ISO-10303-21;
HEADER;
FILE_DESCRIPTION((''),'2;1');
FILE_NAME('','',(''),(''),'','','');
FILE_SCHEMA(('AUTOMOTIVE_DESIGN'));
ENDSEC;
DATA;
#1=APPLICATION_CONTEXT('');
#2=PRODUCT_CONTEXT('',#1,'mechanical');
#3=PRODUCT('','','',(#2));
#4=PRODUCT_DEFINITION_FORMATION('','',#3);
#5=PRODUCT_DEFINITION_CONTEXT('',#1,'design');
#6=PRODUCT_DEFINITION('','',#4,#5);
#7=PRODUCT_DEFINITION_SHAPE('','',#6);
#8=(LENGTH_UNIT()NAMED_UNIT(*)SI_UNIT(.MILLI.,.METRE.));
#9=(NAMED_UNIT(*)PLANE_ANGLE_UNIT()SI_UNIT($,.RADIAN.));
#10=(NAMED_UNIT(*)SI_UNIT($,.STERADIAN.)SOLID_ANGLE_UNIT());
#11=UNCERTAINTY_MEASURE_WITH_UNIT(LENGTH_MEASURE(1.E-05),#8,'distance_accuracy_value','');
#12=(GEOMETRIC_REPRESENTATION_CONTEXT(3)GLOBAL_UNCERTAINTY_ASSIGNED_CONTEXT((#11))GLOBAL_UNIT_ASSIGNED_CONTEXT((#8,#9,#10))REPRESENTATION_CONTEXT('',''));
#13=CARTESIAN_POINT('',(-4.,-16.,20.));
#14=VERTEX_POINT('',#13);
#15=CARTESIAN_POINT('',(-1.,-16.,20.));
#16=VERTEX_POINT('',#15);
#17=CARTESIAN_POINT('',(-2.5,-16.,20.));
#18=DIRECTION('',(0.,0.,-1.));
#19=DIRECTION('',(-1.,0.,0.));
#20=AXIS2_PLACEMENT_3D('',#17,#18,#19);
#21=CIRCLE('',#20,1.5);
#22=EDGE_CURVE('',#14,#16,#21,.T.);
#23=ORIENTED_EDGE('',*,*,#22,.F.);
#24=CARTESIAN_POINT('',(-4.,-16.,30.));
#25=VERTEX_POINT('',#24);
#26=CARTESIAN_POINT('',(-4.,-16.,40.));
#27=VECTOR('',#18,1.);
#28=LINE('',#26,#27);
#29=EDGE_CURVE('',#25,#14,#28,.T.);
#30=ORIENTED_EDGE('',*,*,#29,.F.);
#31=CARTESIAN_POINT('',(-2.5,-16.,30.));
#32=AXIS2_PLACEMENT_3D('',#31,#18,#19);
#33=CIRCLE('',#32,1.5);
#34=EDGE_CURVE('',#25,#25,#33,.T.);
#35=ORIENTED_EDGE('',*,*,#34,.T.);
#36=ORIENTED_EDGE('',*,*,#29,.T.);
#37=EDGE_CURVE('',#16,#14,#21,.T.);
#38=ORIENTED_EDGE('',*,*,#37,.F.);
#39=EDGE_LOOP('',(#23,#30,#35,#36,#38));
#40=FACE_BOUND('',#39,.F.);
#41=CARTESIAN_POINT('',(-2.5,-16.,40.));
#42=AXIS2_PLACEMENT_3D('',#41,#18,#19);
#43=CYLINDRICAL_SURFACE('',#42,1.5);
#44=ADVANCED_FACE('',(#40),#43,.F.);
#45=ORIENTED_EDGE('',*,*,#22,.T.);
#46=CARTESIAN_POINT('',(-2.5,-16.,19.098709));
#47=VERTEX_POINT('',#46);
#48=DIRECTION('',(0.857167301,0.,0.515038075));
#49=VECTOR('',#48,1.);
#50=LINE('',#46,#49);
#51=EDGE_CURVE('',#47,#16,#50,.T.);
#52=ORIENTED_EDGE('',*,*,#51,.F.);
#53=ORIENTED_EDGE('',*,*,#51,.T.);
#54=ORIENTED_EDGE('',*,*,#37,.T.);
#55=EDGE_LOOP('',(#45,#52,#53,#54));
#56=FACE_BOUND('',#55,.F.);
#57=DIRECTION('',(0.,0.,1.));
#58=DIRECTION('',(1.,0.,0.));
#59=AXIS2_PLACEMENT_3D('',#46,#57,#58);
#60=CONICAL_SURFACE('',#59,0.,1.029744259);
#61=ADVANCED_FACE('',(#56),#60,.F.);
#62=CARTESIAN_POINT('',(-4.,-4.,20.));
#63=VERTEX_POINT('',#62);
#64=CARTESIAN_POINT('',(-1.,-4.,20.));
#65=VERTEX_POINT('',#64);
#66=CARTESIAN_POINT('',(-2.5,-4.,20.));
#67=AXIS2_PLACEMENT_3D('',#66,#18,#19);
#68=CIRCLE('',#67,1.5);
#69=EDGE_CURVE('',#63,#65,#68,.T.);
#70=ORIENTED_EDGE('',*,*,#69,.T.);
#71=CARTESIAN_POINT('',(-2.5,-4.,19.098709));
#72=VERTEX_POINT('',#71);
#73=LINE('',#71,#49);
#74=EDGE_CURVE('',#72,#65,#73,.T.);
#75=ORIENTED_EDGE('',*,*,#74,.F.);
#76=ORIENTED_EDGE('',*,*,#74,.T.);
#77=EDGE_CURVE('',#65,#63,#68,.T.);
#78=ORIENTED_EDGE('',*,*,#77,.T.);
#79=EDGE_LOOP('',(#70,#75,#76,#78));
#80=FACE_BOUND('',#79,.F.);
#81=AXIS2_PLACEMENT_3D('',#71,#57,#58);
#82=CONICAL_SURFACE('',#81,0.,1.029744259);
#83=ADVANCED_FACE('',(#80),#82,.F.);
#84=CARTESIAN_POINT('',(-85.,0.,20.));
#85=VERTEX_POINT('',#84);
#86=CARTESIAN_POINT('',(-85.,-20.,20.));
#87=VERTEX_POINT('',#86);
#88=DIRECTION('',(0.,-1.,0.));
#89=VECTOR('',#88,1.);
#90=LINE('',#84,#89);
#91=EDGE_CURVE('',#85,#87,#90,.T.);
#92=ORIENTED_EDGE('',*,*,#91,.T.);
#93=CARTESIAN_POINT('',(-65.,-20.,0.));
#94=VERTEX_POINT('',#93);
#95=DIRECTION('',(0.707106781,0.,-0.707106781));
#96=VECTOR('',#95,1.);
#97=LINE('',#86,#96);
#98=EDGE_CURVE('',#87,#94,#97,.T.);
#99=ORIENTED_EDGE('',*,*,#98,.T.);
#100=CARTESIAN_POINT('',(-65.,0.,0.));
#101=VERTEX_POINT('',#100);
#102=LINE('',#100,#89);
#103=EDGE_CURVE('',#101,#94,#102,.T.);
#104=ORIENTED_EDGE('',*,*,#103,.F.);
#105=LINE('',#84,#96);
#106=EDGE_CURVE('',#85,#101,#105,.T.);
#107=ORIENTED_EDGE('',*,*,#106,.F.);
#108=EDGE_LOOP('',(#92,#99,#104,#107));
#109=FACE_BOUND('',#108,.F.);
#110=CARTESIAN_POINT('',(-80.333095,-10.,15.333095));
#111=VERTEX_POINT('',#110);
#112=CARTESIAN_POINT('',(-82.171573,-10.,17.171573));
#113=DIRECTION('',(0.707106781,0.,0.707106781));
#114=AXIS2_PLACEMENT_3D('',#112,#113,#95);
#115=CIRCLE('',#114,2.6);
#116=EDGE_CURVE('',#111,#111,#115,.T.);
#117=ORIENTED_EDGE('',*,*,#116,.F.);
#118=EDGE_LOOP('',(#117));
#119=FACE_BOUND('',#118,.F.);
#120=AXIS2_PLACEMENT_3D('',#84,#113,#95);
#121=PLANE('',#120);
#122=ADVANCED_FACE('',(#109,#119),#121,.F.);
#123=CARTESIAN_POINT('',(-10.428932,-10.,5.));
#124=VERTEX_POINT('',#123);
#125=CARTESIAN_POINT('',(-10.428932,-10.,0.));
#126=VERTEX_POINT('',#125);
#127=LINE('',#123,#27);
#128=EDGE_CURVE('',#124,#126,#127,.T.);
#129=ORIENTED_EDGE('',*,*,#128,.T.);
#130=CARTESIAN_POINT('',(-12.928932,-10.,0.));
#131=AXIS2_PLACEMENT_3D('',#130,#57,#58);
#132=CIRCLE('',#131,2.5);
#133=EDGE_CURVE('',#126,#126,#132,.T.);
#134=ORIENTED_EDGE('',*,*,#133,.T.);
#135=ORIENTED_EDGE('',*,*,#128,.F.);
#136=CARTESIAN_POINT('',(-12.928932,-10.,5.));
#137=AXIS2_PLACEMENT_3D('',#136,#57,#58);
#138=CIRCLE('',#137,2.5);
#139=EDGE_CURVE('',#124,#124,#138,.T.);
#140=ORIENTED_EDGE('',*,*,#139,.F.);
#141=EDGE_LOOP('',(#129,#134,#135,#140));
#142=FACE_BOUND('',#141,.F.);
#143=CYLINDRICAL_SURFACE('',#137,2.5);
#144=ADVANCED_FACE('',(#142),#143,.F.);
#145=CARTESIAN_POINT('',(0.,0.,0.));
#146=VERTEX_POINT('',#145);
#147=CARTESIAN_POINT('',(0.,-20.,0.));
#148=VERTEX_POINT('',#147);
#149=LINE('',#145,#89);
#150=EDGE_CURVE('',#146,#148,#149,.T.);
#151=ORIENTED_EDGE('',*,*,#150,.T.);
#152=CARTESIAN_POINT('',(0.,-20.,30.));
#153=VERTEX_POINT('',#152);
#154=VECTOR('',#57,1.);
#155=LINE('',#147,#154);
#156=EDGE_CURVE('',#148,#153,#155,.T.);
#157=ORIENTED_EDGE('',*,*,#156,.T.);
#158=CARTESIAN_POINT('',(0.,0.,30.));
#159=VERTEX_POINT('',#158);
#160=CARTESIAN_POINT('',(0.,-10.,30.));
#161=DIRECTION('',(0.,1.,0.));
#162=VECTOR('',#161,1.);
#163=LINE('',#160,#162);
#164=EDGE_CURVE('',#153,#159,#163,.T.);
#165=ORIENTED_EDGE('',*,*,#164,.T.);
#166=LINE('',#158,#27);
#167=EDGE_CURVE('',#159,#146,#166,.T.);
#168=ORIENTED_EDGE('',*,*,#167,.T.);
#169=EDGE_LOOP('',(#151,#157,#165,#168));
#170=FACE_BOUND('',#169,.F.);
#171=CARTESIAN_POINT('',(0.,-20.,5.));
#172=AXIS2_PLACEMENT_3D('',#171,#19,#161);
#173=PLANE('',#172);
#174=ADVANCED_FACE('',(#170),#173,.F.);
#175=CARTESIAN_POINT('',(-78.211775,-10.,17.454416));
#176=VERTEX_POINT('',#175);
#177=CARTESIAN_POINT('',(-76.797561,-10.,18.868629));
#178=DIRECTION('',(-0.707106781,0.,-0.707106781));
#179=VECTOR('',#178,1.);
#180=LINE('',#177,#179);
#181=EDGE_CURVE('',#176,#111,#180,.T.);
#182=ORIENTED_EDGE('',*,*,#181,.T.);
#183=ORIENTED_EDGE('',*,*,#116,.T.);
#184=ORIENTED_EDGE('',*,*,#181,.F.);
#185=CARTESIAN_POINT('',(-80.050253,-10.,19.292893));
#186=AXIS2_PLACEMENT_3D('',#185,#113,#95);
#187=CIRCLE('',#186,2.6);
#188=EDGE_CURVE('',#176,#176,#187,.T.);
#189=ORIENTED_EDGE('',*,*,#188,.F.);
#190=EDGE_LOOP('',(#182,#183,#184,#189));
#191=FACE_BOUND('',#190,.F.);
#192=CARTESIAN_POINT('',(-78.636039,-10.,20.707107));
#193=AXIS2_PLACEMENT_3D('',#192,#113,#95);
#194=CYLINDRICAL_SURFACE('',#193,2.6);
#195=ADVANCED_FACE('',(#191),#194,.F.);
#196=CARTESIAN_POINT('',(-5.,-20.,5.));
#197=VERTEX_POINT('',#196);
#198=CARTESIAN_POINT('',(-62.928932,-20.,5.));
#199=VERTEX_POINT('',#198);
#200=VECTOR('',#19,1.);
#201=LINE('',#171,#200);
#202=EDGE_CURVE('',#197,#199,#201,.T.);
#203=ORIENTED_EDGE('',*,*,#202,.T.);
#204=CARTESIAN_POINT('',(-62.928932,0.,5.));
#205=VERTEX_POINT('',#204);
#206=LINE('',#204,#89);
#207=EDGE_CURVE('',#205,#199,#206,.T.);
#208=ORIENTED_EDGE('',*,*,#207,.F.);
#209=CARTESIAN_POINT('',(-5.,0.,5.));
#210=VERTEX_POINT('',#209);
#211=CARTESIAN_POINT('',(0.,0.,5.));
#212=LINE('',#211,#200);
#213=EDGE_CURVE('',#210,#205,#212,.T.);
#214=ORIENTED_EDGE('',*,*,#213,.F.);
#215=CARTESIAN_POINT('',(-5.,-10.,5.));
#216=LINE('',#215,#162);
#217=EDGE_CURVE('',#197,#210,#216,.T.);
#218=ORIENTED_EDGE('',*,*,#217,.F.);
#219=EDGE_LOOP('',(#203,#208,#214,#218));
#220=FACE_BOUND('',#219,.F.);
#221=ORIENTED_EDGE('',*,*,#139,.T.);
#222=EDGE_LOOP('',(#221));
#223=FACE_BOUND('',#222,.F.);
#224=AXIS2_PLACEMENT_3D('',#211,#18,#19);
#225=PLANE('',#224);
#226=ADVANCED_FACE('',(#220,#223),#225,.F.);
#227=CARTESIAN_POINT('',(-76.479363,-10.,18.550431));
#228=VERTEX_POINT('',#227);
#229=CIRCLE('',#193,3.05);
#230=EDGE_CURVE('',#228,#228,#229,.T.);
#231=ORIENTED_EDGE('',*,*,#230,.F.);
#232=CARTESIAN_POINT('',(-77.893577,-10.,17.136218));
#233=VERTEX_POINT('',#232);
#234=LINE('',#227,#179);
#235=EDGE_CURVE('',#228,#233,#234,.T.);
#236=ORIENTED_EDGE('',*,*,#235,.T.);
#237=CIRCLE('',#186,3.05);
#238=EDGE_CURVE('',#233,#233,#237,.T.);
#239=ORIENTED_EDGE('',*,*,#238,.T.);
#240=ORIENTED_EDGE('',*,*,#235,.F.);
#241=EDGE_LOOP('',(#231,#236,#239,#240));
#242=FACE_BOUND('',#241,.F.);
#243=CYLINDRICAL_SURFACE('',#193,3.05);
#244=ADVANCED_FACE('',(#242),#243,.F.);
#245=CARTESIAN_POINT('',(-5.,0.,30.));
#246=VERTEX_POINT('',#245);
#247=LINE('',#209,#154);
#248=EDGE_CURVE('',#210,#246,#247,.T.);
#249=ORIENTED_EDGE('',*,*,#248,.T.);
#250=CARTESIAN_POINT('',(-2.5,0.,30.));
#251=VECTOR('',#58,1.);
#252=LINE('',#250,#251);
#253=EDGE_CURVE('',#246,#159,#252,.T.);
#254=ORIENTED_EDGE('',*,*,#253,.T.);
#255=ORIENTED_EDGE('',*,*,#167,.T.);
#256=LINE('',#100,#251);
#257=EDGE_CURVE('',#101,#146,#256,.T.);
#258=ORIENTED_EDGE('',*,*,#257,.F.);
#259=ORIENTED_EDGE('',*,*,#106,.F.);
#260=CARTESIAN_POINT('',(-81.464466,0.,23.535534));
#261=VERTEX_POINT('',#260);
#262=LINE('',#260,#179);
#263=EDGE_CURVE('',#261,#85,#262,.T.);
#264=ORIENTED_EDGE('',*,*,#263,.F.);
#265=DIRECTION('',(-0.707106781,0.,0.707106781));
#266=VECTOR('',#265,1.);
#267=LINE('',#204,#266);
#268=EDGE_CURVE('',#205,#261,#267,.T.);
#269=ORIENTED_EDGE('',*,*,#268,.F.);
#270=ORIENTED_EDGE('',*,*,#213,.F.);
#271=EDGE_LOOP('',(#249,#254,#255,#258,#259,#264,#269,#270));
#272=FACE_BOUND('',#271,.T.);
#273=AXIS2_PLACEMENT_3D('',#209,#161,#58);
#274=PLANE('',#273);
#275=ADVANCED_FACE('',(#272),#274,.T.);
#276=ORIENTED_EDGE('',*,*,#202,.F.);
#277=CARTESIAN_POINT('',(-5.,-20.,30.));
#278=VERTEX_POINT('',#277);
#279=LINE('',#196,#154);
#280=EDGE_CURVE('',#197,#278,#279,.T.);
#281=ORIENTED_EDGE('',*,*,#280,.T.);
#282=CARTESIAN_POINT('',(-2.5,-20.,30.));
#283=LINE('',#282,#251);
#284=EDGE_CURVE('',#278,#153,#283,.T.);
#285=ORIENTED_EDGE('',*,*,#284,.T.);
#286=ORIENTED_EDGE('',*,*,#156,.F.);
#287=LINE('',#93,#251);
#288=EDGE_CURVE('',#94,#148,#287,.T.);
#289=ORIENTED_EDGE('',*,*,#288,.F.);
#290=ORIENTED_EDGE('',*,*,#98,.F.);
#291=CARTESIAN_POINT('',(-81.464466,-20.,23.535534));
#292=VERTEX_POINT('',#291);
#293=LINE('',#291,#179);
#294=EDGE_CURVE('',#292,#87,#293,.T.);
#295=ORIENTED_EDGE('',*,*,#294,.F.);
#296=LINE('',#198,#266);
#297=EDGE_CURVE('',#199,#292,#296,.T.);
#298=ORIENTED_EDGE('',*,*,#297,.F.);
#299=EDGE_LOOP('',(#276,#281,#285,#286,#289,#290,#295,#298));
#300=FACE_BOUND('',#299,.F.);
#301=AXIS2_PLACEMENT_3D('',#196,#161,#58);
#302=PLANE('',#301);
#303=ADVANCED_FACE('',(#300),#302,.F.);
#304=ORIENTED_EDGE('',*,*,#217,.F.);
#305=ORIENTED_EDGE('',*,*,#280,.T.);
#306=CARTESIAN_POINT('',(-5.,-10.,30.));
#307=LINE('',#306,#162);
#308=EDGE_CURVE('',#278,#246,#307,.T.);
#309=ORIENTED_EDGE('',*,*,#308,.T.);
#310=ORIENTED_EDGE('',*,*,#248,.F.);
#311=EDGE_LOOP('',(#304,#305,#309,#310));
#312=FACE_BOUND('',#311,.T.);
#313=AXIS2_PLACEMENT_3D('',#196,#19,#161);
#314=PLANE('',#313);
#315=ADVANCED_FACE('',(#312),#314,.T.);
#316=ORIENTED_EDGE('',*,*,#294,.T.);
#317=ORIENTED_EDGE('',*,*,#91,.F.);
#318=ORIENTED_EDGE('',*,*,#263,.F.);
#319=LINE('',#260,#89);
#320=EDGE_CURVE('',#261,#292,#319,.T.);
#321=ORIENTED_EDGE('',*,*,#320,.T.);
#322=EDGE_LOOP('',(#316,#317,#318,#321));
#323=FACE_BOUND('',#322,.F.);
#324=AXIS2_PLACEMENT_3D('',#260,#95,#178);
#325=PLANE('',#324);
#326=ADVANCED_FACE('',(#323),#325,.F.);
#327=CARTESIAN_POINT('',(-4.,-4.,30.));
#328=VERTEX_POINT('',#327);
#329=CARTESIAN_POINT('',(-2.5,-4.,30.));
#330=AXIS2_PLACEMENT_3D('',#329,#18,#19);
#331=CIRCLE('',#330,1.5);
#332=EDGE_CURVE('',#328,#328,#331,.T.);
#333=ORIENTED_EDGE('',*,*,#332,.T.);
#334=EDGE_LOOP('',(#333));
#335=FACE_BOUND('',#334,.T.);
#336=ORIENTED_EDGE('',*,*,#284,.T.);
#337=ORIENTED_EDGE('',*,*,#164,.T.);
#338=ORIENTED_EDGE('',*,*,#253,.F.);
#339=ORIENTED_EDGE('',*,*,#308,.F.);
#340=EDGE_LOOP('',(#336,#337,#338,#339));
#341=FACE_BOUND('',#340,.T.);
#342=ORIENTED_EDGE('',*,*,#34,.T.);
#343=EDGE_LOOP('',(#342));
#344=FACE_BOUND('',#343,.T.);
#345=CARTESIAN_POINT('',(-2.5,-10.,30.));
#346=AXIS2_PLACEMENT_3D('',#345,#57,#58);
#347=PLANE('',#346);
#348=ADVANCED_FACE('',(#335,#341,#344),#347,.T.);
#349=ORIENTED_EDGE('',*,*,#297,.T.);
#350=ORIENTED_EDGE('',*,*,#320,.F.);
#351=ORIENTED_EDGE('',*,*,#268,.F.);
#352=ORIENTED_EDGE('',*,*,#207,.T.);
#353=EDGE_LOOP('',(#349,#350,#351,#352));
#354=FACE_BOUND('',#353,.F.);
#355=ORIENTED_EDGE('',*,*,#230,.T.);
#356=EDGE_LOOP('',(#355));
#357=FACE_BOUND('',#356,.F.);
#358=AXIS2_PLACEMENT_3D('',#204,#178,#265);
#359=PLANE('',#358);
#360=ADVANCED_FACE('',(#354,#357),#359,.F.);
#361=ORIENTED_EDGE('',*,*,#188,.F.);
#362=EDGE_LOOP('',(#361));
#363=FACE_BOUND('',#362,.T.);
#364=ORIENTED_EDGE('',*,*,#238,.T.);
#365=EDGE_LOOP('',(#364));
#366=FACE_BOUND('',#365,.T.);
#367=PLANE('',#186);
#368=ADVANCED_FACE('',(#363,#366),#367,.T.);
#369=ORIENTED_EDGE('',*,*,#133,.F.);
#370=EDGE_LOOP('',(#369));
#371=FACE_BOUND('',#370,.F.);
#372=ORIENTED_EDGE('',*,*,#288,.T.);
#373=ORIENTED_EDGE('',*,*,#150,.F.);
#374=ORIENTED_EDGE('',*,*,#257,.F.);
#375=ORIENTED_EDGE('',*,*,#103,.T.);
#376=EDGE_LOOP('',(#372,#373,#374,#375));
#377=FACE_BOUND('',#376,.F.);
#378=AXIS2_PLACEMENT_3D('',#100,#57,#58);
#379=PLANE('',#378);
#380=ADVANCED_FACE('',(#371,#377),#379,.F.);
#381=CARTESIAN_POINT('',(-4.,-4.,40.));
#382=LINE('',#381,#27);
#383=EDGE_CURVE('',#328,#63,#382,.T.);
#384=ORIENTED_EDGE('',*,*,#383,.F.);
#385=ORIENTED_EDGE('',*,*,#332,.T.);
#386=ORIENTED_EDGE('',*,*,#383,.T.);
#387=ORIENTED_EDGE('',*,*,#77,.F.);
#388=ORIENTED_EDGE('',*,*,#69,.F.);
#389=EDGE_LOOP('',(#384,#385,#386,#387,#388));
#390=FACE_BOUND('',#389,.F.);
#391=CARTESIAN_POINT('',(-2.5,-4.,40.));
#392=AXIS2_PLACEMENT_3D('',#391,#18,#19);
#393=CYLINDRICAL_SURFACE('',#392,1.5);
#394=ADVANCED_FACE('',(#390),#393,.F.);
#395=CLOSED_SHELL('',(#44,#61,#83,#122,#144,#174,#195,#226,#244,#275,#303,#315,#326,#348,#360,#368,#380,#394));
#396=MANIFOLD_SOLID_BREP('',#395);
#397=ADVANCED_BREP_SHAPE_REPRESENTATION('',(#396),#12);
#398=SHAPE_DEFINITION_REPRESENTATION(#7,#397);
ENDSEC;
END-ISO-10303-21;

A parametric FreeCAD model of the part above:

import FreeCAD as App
import Part
import Sketcher
Q = App.Units.Quantity

doc = App.newDocument("Part")
body = doc.addObject("PartDesign::Body", "Body")

# Sketch on XZ plane
sketch1 = doc.addObject("Sketcher::SketchObject", "Sketch")
body.addObject(sketch1)
sketch1.AttachmentSupport = (doc.XZ_Plane, [""])
sketch1.MapMode = "FlatFace"
sketch1.addGeometry(Part.LineSegment(App.Vector(-65, 0, 0), App.Vector(0, 0, 0)), False)
sketch1.addGeometry(Part.LineSegment(App.Vector(0, 0, 0), App.Vector(0, 5, 0)), False)
sketch1.addGeometry(Part.LineSegment(App.Vector(0, 5, 0), App.Vector(-63, 5, 0)), False)
sketch1.addGeometry(Part.LineSegment(App.Vector(-63, 5, 0), App.Vector(-81, 24, 0)), False)
sketch1.addGeometry(Part.LineSegment(App.Vector(-81, 24, 0), App.Vector(-85, 20, 0)), False)
sketch1.addGeometry(Part.LineSegment(App.Vector(-85, 20, 0), App.Vector(-65, 0, 0)), False)
sketch1.addConstraint(Sketcher.Constraint("Coincident", 0, 2, 1, 1))
sketch1.addConstraint(Sketcher.Constraint("Coincident", 1, 2, 2, 1))
sketch1.addConstraint(Sketcher.Constraint("Coincident", 2, 2, 3, 1))
sketch1.addConstraint(Sketcher.Constraint("Coincident", 3, 2, 4, 1))
sketch1.addConstraint(Sketcher.Constraint("Coincident", 4, 2, 5, 1))
sketch1.addConstraint(Sketcher.Constraint("Coincident", 5, 2, 0, 1))
sketch1.addConstraint(Sketcher.Constraint("Horizontal", 0))
sketch1.addConstraint(Sketcher.Constraint("Vertical", 1))
sketch1.addConstraint(Sketcher.Constraint("Horizontal", 2))
sketch1.addConstraint(Sketcher.Constraint("Coincident", 0, 2, -1, 1))
sketch1.addConstraint(Sketcher.Constraint("Perpendicular", 3, 4))
sketch1.addConstraint(Sketcher.Constraint("Perpendicular", 4, 5))
sketch1.addConstraint(Sketcher.Constraint("DistanceX", 0, 1, 0, 2, 65.0))
sketch1.addConstraint(Sketcher.Constraint("DistanceY", 1, 1, 1, 2, 5.0))
sketch1.addConstraint(Sketcher.Constraint("Angle", 3, Q("135 deg")))
sketch1.addConstraint(Sketcher.Constraint("Distance", 4, 5.0))
sketch1.addConstraint(Sketcher.Constraint("DistanceX", 4, 2, -1, 1, 85.0))
pad1 = doc.addObject("PartDesign::Pad", "Pad")
body.addObject(pad1)
pad1.Profile = sketch1
pad1.Length = 20

# Sketch on an angled plane
sketch2 = doc.addObject("Sketcher::SketchObject", "Sketch001")
body.addObject(sketch2)
sketch2.Placement = App.Placement(App.Vector(-28.964466, 0, -28.964466), App.Rotation(App.Vector(0.707106781, 0, -0.707106781), App.Vector(0, 0.999999999, 0), App.Vector(0.707106781, 0, 0.707106781), "ZXY"))
sketch2.addGeometry(Part.Circle(App.Vector(-70.2, -10, 0), App.Vector(0, 0, 1), 2.6), False)
sketch2.addConstraint(Sketcher.Constraint("Diameter", 0, 5.2))
sketch2.addConstraint(Sketcher.Constraint("DistanceY", 0, 3, -1, 1, 10.0))
sketch2.addConstraint(Sketcher.Constraint("DistanceX", 0, 3, -1, 1, 70.246212))
pocket1 = doc.addObject("PartDesign::Pocket", "Pocket")
body.addObject(pocket1)
pocket1.Profile = sketch2
pocket1.Type = "ThroughAll"

# Sketch on XY plane
sketch3 = doc.addObject("Sketcher::SketchObject", "Sketch002")
body.addObject(sketch3)
sketch3.AttachmentSupport = (doc.XY_Plane, [""])
sketch3.MapMode = "FlatFace"
sketch3.AttachmentOffset = App.Placement(App.Vector(0, 0, 5), App.Rotation())
sketch3.addGeometry(Part.Circle(App.Vector(-12.9, -10, 0), App.Vector(0, 0, 1), 2.5), False)
sketch3.addConstraint(Sketcher.Constraint("Diameter", 0, 5.0))
sketch3.addConstraint(Sketcher.Constraint("DistanceY", 0, 3, -1, 1, 10.0))
sketch3.addConstraint(Sketcher.Constraint("DistanceX", 0, 3, -1, 1, 12.928932))
pocket2 = doc.addObject("PartDesign::Pocket", "Pocket001")
body.addObject(pocket2)
pocket2.Profile = sketch3
pocket2.Type = "ThroughAll"

# Sketch on an angled plane
sketch4 = doc.addObject("Sketcher::SketchObject", "Sketch003")
body.addObject(sketch4)
sketch4.Placement = App.Placement(App.Vector(-28.964466, 0, -28.964466), App.Rotation(App.Vector(0.707106781, 0, -0.707106781), App.Vector(0, 0.999999999, 0), App.Vector(0.707106781, 0, 0.707106781), "ZXY"))
sketch4.addGeometry(Part.Circle(App.Vector(-70.2, -10, 0), App.Vector(0, 0, 1), 3), False)
sketch4.addConstraint(Sketcher.Constraint("Diameter", 0, 6.1))
sketch4.addConstraint(Sketcher.Constraint("DistanceY", 0, 3, -1, 1, 10.0))
sketch4.addConstraint(Sketcher.Constraint("DistanceX", 0, 3, -1, 1, 70.246212))
pocket3 = doc.addObject("PartDesign::Pocket", "Pocket002")
body.addObject(pocket3)
pocket3.Profile = sketch4
pocket3.Length = 2

# Sketch on XY plane
sketch5 = doc.addObject("Sketcher::SketchObject", "Sketch004")
body.addObject(sketch5)
sketch5.AttachmentSupport = (doc.XY_Plane, [""])
sketch5.MapMode = "FlatFace"
sketch5.AttachmentOffset = App.Placement(App.Vector(0, 0, 5), App.Rotation())
sketch5.addGeometry(Part.LineSegment(App.Vector(-5, 0, 0), App.Vector(-5, -20, 0)), False)
sketch5.addGeometry(Part.LineSegment(App.Vector(-5, -20, 0), App.Vector(0, -20, 0)), False)
sketch5.addGeometry(Part.LineSegment(App.Vector(0, -20, 0), App.Vector(0, 0, 0)), False)
sketch5.addGeometry(Part.LineSegment(App.Vector(0, 0, 0), App.Vector(-5, 0, 0)), False)
sketch5.addConstraint(Sketcher.Constraint("Coincident", 0, 2, 1, 1))
sketch5.addConstraint(Sketcher.Constraint("Coincident", 1, 2, 2, 1))
sketch5.addConstraint(Sketcher.Constraint("Coincident", 2, 2, 3, 1))
sketch5.addConstraint(Sketcher.Constraint("Coincident", 3, 2, 0, 1))
sketch5.addConstraint(Sketcher.Constraint("Vertical", 0))
sketch5.addConstraint(Sketcher.Constraint("Horizontal", 1))
sketch5.addConstraint(Sketcher.Constraint("Vertical", 2))
sketch5.addConstraint(Sketcher.Constraint("Horizontal", 3))
sketch5.addConstraint(Sketcher.Constraint("Coincident", 2, 2, -1, 1))
sketch5.addConstraint(Sketcher.Constraint("DistanceX", 1, 1, 1, 2, 5.0))
sketch5.addConstraint(Sketcher.Constraint("DistanceY", 0, 2, 0, 1, 20.0))
pad2 = doc.addObject("PartDesign::Pad", "Pad001")
body.addObject(pad2)
pad2.Profile = sketch5
pad2.Length = 25

# Sketch on XY plane
sketch6 = doc.addObject("Sketcher::SketchObject", "Sketch005")
body.addObject(sketch6)
sketch6.AttachmentSupport = (doc.XY_Plane, [""])
sketch6.MapMode = "FlatFace"
sketch6.AttachmentOffset = App.Placement(App.Vector(0, 0, 30), App.Rotation())
sketch6.addGeometry(Part.Circle(App.Vector(-2.5, -16, 0), App.Vector(0, 0, 1), 1.5), False)
sketch6.addGeometry(Part.Circle(App.Vector(-2.5, -4, 0), App.Vector(0, 0, 1), 1.5), False)
sketch6.addConstraint(Sketcher.Constraint("Equal", 0, 1))
sketch6.addConstraint(Sketcher.Constraint("Vertical", 0, 3, 1, 3))
sketch6.addConstraint(Sketcher.Constraint("Diameter", 0, 3.0))
sketch6.addConstraint(Sketcher.Constraint("DistanceY", 0, 3, -1, 1, 16.0))
sketch6.addConstraint(Sketcher.Constraint("DistanceY", 1, 3, -1, 1, 4.0))
sketch6.addConstraint(Sketcher.Constraint("DistanceX", 0, 3, -1, 1, 2.5))
doc.recompute()
hole = doc.addObject("PartDesign::Hole", "Hole")
body.addObject(hole)
hole.Profile = sketch6
hole.ThreadType = "None"
hole.Diameter = 3
hole.DepthType = "Dimension"
hole.Depth = 10
hole.DrillPoint = "Angled"
hole.DrillPointAngle = 118

doc.recompute()
